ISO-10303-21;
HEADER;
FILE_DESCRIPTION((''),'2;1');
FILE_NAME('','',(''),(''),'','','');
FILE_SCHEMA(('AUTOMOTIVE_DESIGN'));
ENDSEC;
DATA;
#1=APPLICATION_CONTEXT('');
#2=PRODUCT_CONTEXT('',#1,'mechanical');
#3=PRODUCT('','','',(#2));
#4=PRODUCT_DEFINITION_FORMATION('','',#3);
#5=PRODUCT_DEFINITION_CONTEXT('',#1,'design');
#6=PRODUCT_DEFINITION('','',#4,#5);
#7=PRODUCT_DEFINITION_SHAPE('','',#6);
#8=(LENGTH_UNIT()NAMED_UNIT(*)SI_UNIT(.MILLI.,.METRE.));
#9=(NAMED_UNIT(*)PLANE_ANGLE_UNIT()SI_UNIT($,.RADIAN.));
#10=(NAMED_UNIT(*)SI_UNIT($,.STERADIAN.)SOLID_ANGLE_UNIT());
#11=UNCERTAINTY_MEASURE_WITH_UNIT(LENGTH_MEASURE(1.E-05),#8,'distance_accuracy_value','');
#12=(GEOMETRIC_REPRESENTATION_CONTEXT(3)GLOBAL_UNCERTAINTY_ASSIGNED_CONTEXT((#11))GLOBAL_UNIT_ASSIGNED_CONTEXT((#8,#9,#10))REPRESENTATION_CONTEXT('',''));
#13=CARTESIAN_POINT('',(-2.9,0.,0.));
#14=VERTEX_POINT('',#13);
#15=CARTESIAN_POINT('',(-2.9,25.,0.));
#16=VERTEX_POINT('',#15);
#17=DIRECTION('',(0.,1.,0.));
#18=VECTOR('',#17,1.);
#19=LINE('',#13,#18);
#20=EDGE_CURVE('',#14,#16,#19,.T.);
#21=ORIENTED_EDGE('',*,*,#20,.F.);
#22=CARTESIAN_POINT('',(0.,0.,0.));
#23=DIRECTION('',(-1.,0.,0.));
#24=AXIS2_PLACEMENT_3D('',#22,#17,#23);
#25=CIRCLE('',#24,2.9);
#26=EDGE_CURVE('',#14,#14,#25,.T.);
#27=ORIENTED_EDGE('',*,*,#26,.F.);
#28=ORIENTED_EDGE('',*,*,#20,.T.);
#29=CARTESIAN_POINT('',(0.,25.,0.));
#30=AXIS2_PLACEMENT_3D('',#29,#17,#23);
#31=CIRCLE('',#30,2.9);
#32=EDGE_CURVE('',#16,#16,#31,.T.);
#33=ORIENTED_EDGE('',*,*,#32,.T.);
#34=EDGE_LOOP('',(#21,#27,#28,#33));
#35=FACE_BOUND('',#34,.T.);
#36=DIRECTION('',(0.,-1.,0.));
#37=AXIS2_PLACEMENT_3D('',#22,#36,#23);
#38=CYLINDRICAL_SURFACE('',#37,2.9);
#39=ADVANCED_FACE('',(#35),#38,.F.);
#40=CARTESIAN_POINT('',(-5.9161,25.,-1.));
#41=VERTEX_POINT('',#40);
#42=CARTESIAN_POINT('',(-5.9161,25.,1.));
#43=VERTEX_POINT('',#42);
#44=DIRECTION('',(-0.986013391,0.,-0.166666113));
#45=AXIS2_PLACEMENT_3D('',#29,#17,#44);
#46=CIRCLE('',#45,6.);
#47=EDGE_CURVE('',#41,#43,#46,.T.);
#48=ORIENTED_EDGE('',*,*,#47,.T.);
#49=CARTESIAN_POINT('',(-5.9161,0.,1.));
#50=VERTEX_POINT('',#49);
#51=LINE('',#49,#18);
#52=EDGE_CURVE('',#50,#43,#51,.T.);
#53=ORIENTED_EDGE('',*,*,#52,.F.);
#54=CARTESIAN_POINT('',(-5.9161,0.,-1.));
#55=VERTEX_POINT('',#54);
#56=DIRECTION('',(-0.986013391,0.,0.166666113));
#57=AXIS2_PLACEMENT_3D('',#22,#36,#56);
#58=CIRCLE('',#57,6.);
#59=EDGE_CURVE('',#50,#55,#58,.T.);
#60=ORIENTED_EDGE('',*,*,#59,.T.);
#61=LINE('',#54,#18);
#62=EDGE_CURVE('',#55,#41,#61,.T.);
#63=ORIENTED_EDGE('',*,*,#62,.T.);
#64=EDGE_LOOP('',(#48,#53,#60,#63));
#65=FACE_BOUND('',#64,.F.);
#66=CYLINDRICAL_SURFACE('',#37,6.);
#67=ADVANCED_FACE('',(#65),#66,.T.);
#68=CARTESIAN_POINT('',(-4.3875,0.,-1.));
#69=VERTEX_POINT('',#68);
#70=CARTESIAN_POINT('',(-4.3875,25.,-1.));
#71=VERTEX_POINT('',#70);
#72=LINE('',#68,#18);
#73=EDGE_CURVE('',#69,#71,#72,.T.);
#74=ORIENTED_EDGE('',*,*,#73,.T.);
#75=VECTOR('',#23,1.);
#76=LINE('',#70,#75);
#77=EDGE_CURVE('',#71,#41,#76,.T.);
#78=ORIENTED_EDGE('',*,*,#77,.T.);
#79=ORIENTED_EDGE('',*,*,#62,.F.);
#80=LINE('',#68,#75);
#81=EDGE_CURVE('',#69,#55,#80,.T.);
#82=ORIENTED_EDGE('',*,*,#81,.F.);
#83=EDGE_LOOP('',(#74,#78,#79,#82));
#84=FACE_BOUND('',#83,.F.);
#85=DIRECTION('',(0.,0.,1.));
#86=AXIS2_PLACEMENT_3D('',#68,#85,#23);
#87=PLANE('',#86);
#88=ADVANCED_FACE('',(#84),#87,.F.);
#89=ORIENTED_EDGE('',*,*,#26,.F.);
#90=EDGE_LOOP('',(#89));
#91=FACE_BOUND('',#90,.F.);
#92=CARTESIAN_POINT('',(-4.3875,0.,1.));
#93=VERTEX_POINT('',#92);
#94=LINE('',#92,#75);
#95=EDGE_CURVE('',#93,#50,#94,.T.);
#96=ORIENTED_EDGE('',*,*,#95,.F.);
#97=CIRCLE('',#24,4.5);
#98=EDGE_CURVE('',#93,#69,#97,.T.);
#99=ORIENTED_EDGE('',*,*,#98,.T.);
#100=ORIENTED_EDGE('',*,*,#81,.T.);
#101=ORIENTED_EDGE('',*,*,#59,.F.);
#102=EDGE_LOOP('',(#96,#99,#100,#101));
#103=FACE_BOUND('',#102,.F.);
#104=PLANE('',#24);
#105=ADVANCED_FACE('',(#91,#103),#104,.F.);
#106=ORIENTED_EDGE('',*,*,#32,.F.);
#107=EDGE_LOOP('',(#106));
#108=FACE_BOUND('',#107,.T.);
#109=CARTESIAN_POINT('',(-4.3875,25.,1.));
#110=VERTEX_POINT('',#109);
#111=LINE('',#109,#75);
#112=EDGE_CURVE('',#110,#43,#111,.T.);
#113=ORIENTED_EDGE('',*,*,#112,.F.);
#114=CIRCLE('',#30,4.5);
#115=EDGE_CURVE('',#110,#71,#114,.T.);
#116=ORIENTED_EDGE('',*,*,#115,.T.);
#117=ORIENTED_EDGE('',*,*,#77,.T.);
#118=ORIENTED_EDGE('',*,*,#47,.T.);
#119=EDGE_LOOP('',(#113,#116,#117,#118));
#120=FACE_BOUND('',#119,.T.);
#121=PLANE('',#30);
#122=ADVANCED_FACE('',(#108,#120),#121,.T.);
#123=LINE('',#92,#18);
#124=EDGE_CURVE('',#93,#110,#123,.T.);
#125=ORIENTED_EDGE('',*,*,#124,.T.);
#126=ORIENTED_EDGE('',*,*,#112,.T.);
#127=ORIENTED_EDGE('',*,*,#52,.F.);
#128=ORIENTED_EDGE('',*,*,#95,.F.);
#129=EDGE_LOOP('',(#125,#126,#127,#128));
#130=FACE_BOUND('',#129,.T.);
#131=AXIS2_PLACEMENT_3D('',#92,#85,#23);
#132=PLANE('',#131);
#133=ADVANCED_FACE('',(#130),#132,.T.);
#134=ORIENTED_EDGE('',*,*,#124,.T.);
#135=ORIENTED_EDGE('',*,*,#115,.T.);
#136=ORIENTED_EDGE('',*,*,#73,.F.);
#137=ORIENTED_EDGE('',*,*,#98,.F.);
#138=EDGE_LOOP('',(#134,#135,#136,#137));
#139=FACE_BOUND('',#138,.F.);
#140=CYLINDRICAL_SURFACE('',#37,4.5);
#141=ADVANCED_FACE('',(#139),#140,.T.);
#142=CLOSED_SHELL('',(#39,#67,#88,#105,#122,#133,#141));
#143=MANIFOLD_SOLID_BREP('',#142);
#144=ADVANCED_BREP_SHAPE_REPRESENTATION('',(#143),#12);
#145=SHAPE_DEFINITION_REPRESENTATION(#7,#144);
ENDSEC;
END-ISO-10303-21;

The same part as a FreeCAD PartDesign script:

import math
import FreeCAD as App
import Part
import Sketcher
Q = App.Units.Quantity

doc = App.newDocument("Part")
body = doc.addObject("PartDesign::Body", "Body")

# Sketch on XZ plane
sketch1 = body.newObject("Sketcher::SketchObject", "Sketch")
sketch1.AttachmentSupport = (doc.getObject("XZ_Plane"), [""])
sketch1.MapMode = "FlatFace"
sketch1.addGeometry(Part.ArcOfCircle(Part.Circle(App.Vector(0, 0, 0), App.Vector(0, 0, 1), 4.5), math.radians(-167.160462), math.radians(167.160462)), False)
sketch1.addGeometry(Part.LineSegment(App.Vector(-4.3875, -1, 0), App.Vector(-5.9161, -1, 0)), False)
sketch1.addGeometry(Part.ArcOfCircle(Part.Circle(App.Vector(0, 0, 0), App.Vector(0, 0, 1), 6), math.radians(170.405964), math.radians(189.594036)), False)
sketch1.addGeometry(Part.LineSegment(App.Vector(-5.9161, 1, 0), App.Vector(-4.3875, 1, 0)), False)
sketch1.addGeometry(Part.Circle(App.Vector(0, 0, 0), App.Vector(0, 0, 1), 2.9), False)
sketch1.addConstraint(Sketcher.Constraint("Coincident", 0, 1, 1, 1))
sketch1.addConstraint(Sketcher.Constraint("Coincident", 1, 2, 2, 2))
sketch1.addConstraint(Sketcher.Constraint("Coincident", 2, 1, 3, 1))
sketch1.addConstraint(Sketcher.Constraint("Coincident", 3, 2, 0, 2))
sketch1.addConstraint(Sketcher.Constraint("Horizontal", 1))
sketch1.addConstraint(Sketcher.Constraint("Horizontal", 3))
sketch1.addConstraint(Sketcher.Constraint("Coincident", 0, 3, -1, 1))
sketch1.addConstraint(Sketcher.Constraint("Coincident", 2, 3, -1, 1))
sketch1.addConstraint(Sketcher.Constraint("Coincident", 4, 3, -1, 1))
sketch1.addConstraint(Sketcher.Constraint("Vertical", 1, 2, 2, 1))
sketch1.addConstraint(Sketcher.Constraint("Radius", 2, Q("6 mm")))
sketch1.addConstraint(Sketcher.Constraint("Diameter", 4, Q("5.8 mm")))
sketch1.addConstraint(Sketcher.Constraint("Radius", 0, Q("4.5 mm")))
sketch1.addConstraint(Sketcher.Constraint("DistanceY", 0, 1, -1, 1, Q("1 mm")))
pad1 = body.newObject("PartDesign::Pad", "Pad")
pad1.Profile = sketch1
pad1.Length = 25
pad1.Reversed = True

doc.recompute()
